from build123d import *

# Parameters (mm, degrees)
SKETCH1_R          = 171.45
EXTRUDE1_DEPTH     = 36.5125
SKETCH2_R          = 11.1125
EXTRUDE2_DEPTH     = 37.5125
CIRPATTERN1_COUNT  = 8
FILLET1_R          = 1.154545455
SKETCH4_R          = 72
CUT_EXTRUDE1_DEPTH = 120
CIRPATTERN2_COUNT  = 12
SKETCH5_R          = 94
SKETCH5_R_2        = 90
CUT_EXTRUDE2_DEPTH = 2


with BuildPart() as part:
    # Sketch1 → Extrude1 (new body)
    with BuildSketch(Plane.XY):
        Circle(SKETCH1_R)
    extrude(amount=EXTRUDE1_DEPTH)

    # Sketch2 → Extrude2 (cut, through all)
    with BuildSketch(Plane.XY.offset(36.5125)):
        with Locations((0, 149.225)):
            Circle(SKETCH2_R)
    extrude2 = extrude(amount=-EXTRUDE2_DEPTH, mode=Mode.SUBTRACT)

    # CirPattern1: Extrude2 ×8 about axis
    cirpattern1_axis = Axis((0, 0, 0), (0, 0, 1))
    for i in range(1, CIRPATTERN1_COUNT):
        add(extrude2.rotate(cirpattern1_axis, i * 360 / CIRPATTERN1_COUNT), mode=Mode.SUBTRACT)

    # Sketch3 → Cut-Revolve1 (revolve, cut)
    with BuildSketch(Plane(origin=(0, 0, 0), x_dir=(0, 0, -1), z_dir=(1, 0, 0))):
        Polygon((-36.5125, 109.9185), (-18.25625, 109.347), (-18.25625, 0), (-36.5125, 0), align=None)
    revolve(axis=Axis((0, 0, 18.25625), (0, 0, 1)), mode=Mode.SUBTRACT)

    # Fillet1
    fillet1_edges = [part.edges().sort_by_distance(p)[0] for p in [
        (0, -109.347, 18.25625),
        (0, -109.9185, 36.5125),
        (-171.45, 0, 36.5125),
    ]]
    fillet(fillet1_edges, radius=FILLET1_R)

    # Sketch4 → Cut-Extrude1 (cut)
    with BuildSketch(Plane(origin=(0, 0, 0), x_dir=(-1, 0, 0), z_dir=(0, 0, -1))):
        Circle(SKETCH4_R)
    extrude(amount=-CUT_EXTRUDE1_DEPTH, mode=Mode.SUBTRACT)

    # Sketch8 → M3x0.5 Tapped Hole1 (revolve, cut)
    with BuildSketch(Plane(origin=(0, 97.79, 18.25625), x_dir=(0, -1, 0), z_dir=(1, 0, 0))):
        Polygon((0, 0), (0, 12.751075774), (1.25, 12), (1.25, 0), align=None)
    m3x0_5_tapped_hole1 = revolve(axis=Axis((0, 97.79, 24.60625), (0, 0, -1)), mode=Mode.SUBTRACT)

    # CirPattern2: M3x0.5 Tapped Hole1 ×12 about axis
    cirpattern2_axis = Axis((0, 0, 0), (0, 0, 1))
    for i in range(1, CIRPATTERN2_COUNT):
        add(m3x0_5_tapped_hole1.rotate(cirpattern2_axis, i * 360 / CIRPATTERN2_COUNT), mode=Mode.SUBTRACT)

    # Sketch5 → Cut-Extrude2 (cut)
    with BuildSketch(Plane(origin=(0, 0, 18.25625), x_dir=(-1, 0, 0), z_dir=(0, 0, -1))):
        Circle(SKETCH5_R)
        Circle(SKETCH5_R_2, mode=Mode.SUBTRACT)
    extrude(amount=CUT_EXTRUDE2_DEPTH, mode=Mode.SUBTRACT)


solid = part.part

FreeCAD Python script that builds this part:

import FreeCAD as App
import Part
import Sketcher

V = App.Vector
Q = App.Units.Quantity


def edges_at(feature, points):
    """Names of the edges that pass closest to the given points."""
    edges = feature.Shape.Edges
    near = lambda p: min(range(len(edges)), key=lambda i: edges[i].distToShape(Part.Vertex(*p))[0])
    return sorted({f"Edge{near(p) + 1}" for p in points})

doc = App.newDocument("Part")
body = doc.addObject("PartDesign::Body", "Body")

sketch1 = body.newObject("Sketcher::SketchObject", "Sketch")
sketch1.AttachmentSupport = (doc.getObject("XY_Plane"), [""])
sketch1.MapMode = "FlatFace"
sketch1.addGeometry(Part.Circle(V(0, 0, 0), V(0, 0, 1), 171), False)
sketch1.addConstraint(Sketcher.Constraint("Coincident", 0, 3, -1, 1))
sketch1.addConstraint(Sketcher.Constraint("Diameter", 0, 342.9))
pad1 = body.newObject("PartDesign::Pad", "Pad")
pad1.Profile = sketch1
pad1.Length = 36.5125

sketch2 = body.newObject("Sketcher::SketchObject", "Sketch001")
sketch2.AttachmentSupport = (doc.getObject("XY_Plane"), [""])
sketch2.MapMode = "FlatFace"
sketch2.AttachmentOffset = App.Placement(V(0, 0, 36.5125), App.Rotation())
sketch2.addGeometry(Part.Circle(V(0, 149, 0), V(0, 0, 1), 11), False)
sketch2.addConstraint(Sketcher.Constraint("PointOnObject", 0, 3, -2))
sketch2.addConstraint(Sketcher.Constraint("Diameter", 0, 22.225))
sketch2.addConstraint(Sketcher.Constraint("DistanceY", -1, 1, 0, 3, 149.225))
pocket1 = body.newObject("PartDesign::Pocket", "Pocket")
pocket1.Profile = sketch2
pocket1.Type = "ThroughAll"
doc.recompute()

polarpattern = body.newObject("PartDesign::PolarPattern", "PolarPattern")
polarpattern.Originals = [pocket1]
polarpattern.Axis = (doc.getObject("Z_Axis"), [""])
polarpattern.Angle = 360
polarpattern.Occurrences = 8
body.Tip = polarpattern

sketch3 = body.newObject("Sketcher::SketchObject", "Sketch002")
sketch3.AttachmentSupport = (doc.getObject("YZ_Plane"), [""])
sketch3.MapMode = "FlatFace"
sketch3.addGeometry(Part.LineSegment(V(109, 18, 0), V(110, 37, 0)), False)
sketch3.addGeometry(Part.LineSegment(V(110, 37, 0), V(0, 37, 0)), False)
sketch3.addGeometry(Part.LineSegment(V(0, 37, 0), V(0, 18, 0)), False)
sketch3.addGeometry(Part.LineSegment(V(0, 18, 0), V(109, 18, 0)), False)
sketch3.addConstraint(Sketcher.Constraint("Coincident", 0, 2, 1, 1))
sketch3.addConstraint(Sketcher.Constraint("Coincident", 1, 2, 2, 1))
sketch3.addConstraint(Sketcher.Constraint("Coincident", 2, 2, 3, 1))
sketch3.addConstraint(Sketcher.Constraint("Coincident", 3, 2, 0, 1))
sketch3.addConstraint(Sketcher.Constraint("Horizontal", 1))
sketch3.addConstraint(Sketcher.Constraint("Vertical", 2))
sketch3.addConstraint(Sketcher.Constraint("Horizontal", 3))
sketch3.addConstraint(Sketcher.Constraint("PointOnObject", 1, 2, -2))
sketch3.addConstraint(Sketcher.Constraint("DistanceX", 3, 1, 3, 2, 109.347))
sketch3.addConstraint(Sketcher.Constraint("DistanceX", 1, 2, 1, 1, 109.9185))
sketch3.addConstraint(Sketcher.Constraint("DistanceY", 2, 2, 2, 1, 18.25625))
sketch3.addConstraint(Sketcher.Constraint("DistanceY", -1, 1, 0, 2, 36.5125))
groove = body.newObject("PartDesign::Groove", "Groove")
groove.Profile = sketch3
groove.ReferenceAxis = (sketch3, ["V_Axis"])
groove.Angle = 360
doc.recompute()

fillet = body.newObject("PartDesign::Fillet", "Fillet")
fillet.Base = (groove, edges_at(groove, [(0, -109.347, 18.256), (0, -109.918, 36.513), (-171.45, 0, 36.513)]))
fillet.Radius = 1.154545

sketch4 = body.newObject("Sketcher::SketchObject", "Sketch003")
sketch4.AttachmentSupport = (doc.getObject("XY_Plane"), [""])
sketch4.MapMode = "FlatFace"
sketch4.addGeometry(Part.Circle(V(0, 0, 0), V(0, 0, 1), 72), False)
sketch4.addConstraint(Sketcher.Constraint("Coincident", 0, 3, -1, 1))
sketch4.addConstraint(Sketcher.Constraint("Diameter", 0, 144.0))
pocket2 = body.newObject("PartDesign::Pocket", "Pocket001")
pocket2.Profile = sketch4
pocket2.Length = 120
pocket2.Reversed = True

sketch5 = body.newObject("Sketcher::SketchObject", "Sketch004")
sketch5.AttachmentSupport = (doc.getObject("YZ_Plane"), [""])
sketch5.MapMode = "FlatFace"
sketch5.addGeometry(Part.LineSegment(V(97.8, 5.5, 0), V(97.8, 18.3, 0)), False)
sketch5.addGeometry(Part.LineSegment(V(97.8, 18.3, 0), V(96.5, 18.3, 0)), False)
sketch5.addGeometry(Part.LineSegment(V(96.5, 18.3, 0), V(96.5, 6.3, 0)), False)
sketch5.addGeometry(Part.LineSegment(V(96.5, 6.3, 0), V(97.8, 5.5, 0)), False)
sketch5.addGeometry(Part.LineSegment(V(97.8, 18.3, 0), V(97.8, 5.5, 0)), True)
sketch5.addConstraint(Sketcher.Constraint("Coincident", 0, 2, 1, 1))
sketch5.addConstraint(Sketcher.Constraint("Coincident", 1, 2, 2, 1))
sketch5.addConstraint(Sketcher.Constraint("Coincident", 2, 2, 3, 1))
sketch5.addConstraint(Sketcher.Constraint("Coincident", 3, 2, 0, 1))
sketch5.addConstraint(Sketcher.Constraint("Vertical", 0))
sketch5.addConstraint(Sketcher.Constraint("Horizontal", 1))
sketch5.addConstraint(Sketcher.Constraint("Vertical", 2))
sketch5.addConstraint(Sketcher.Constraint("Vertical", 4))
sketch5.addConstraint(Sketcher.Constraint("Coincident", 4, 1, 0, 2))
sketch5.addConstraint(Sketcher.Constraint("Equal", 0, 4))
sketch5.addConstraint(Sketcher.Constraint("DistanceY", 2, 2, 2, 1, 12.0))
sketch5.addConstraint(Sketcher.Constraint("Angle", 3, Q("-31 deg")))
sketch5.addConstraint(Sketcher.Constraint("DistanceX", 1, 2, 1, 1, 1.25))
sketch5.addConstraint(Sketcher.Constraint("DistanceX", -1, 1, 0, 2, 97.79))
sketch5.addConstraint(Sketcher.Constraint("DistanceY", -1, 1, 0, 2, 18.25625))
groove2 = body.newObject("PartDesign::Groove", "Groove001")
groove2.Profile = sketch5
groove2.ReferenceAxis = (sketch5, ["Axis0"])
groove2.Angle = 360
doc.recompute()

polarpattern2 = body.newObject("PartDesign::PolarPattern", "PolarPattern001")
polarpattern2.Originals = [groove2]
polarpattern2.Axis = (doc.getObject("Z_Axis"), [""])
polarpattern2.Angle = 360
polarpattern2.Occurrences = 12
body.Tip = polarpattern2

sketch6 = body.newObject("Sketcher::SketchObject", "Sketch005")
sketch6.AttachmentSupport = (doc.getObject("XY_Plane"), [""])
sketch6.MapMode = "FlatFace"
sketch6.AttachmentOffset = App.Placement(V(0, 0, 18.25625), App.Rotation())
sketch6.addGeometry(Part.Circle(V(0, 0, 0), V(0, 0, 1), 94), False)
sketch6.addGeometry(Part.Circle(V(0, 0, 0), V(0, 0, 1), 90), False)
sketch6.addConstraint(Sketcher.Constraint("Coincident", 0, 3, -1, 1))
sketch6.addConstraint(Sketcher.Constraint("Coincident", 1, 3, -1, 1))
sketch6.addConstraint(Sketcher.Constraint("Diameter", 0, 188.0))
sketch6.addConstraint(Sketcher.Constraint("Diameter", 1, 180.0))
pocket3 = body.newObject("PartDesign::Pocket", "Pocket002")
pocket3.Profile = sketch6
pocket3.Length = 2

doc.recompute()
